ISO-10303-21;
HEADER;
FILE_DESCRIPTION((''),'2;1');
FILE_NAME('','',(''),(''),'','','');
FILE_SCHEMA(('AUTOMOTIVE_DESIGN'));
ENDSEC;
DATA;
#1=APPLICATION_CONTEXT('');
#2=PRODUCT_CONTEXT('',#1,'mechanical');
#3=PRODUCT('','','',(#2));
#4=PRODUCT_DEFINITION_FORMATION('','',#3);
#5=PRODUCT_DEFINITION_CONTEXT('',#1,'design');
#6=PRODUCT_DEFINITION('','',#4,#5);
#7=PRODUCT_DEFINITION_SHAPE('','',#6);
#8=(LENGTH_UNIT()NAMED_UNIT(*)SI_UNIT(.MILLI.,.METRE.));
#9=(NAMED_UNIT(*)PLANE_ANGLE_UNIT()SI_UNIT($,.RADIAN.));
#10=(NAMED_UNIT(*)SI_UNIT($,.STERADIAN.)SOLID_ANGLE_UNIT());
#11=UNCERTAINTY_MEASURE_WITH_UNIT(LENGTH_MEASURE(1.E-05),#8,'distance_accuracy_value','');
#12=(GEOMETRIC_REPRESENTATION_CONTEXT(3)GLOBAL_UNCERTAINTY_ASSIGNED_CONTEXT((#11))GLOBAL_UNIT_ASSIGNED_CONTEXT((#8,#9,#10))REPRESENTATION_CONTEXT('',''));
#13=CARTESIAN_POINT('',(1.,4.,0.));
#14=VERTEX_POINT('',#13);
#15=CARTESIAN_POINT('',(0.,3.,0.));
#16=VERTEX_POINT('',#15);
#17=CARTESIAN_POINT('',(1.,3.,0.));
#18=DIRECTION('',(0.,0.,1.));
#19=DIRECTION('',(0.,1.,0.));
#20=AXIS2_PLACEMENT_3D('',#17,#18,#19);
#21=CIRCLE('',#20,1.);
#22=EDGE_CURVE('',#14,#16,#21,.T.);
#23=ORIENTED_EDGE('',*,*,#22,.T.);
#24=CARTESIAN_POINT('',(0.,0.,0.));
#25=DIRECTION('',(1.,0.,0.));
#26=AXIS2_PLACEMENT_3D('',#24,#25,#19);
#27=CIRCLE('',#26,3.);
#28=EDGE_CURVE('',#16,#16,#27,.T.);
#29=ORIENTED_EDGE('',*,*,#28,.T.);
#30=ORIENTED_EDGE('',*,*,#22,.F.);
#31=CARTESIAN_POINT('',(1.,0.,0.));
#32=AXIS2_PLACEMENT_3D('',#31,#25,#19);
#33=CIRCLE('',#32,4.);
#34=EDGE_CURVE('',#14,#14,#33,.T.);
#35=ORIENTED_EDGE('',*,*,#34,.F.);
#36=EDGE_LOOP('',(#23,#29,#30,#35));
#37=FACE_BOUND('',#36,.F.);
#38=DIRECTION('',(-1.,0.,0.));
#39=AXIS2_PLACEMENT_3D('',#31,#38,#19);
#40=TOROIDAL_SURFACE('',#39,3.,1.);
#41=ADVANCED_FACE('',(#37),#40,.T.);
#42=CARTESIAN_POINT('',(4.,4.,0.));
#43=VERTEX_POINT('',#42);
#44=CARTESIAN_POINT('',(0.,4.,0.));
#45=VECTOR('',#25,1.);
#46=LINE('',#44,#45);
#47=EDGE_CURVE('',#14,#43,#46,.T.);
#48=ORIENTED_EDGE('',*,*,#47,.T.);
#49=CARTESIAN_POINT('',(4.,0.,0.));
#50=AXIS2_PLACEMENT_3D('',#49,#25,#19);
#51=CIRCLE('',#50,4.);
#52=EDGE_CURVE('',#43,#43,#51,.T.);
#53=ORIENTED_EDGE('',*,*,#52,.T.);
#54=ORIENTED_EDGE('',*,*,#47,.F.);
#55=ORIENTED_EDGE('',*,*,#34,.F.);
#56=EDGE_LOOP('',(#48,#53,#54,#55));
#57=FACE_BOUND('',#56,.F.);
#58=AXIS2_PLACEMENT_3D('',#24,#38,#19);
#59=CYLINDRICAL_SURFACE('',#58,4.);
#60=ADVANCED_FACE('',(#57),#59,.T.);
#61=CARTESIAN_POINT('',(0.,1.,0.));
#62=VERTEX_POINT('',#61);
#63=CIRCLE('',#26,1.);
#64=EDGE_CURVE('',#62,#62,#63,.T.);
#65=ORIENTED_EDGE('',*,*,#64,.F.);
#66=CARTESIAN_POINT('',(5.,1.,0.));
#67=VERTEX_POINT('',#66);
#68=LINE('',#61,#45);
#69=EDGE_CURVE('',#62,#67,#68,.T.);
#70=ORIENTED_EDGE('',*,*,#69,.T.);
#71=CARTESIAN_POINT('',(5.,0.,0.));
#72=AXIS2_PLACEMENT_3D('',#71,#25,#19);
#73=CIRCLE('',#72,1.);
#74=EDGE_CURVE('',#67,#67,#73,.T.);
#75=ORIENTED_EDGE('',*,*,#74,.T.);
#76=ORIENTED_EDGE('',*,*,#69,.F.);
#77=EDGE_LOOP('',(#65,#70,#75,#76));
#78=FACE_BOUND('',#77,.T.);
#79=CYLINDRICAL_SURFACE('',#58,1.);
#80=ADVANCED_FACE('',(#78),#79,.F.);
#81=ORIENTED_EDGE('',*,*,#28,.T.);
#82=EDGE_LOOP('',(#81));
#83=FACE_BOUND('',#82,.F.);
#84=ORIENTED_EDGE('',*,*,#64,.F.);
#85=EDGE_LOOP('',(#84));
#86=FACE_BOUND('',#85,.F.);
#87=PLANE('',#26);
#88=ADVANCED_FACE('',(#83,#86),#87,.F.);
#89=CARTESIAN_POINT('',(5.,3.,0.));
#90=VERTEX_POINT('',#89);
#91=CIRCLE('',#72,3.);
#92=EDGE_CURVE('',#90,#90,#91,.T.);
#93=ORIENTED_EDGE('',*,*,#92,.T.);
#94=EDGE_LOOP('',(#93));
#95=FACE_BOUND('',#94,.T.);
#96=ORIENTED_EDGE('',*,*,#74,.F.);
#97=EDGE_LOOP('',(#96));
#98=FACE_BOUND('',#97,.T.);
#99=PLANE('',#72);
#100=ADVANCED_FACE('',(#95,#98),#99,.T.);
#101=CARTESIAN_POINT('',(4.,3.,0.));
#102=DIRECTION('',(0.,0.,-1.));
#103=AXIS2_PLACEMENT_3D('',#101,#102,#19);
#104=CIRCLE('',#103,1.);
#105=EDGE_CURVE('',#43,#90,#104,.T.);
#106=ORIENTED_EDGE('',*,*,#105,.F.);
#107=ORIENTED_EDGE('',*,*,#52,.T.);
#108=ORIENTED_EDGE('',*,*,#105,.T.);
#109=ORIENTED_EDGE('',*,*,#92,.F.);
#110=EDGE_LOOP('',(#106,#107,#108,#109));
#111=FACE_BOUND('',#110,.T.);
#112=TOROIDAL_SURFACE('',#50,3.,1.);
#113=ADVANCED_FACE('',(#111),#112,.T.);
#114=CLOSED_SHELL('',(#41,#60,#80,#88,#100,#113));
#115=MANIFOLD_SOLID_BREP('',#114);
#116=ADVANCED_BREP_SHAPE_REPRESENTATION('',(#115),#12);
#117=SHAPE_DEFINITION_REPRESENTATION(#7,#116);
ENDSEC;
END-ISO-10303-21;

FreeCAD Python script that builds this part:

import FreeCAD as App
import Part
import Sketcher


def edges_at(feature, points):
    """Names of the edges that pass closest to the given points."""
    edges = feature.Shape.Edges
    near = lambda p: min(range(len(edges)), key=lambda i: edges[i].distToShape(Part.Vertex(*p))[0])
    return sorted({f"Edge{near(p) + 1}" for p in points})

doc = App.newDocument("Part")
body = doc.addObject("PartDesign::Body", "Body")

# Sketch on YZ plane
sketch1 = body.newObject("Sketcher::SketchObject", "Sketch")
sketch1.AttachmentSupport = (doc.getObject("YZ_Plane"), [""])
sketch1.MapMode = "FlatFace"
sketch1.addGeometry(Part.Circle(App.Vector(0, 0, 0), App.Vector(0, 0, 1), 4), False)
sketch1.addGeometry(Part.Circle(App.Vector(0, 0, 0), App.Vector(0, 0, 1), 1), False)
sketch1.addConstraint(Sketcher.Constraint("Coincident", 0, 3, -1, 1))
sketch1.addConstraint(Sketcher.Constraint("Coincident", 1, 3, -1, 1))
sketch1.addConstraint(Sketcher.Constraint("Diameter", 0, 8.0))
sketch1.addConstraint(Sketcher.Constraint("Diameter", 1, 2.0))
pad1 = body.newObject("PartDesign::Pad", "Pad")
pad1.Profile = sketch1
pad1.Length = 5
doc.recompute()

fillet = body.newObject("PartDesign::Fillet", "Fillet")
fillet.Base = (pad1, edges_at(pad1, [(0, -3.729, -1.446)]))
fillet.Radius = 1
doc.recompute()

fillet2 = body.newObject("PartDesign::Fillet", "Fillet001")
fillet2.Base = (fillet, edges_at(fillet, [(5, -3.729, -1.446)]))
fillet2.Radius = 1

doc.recompute()
